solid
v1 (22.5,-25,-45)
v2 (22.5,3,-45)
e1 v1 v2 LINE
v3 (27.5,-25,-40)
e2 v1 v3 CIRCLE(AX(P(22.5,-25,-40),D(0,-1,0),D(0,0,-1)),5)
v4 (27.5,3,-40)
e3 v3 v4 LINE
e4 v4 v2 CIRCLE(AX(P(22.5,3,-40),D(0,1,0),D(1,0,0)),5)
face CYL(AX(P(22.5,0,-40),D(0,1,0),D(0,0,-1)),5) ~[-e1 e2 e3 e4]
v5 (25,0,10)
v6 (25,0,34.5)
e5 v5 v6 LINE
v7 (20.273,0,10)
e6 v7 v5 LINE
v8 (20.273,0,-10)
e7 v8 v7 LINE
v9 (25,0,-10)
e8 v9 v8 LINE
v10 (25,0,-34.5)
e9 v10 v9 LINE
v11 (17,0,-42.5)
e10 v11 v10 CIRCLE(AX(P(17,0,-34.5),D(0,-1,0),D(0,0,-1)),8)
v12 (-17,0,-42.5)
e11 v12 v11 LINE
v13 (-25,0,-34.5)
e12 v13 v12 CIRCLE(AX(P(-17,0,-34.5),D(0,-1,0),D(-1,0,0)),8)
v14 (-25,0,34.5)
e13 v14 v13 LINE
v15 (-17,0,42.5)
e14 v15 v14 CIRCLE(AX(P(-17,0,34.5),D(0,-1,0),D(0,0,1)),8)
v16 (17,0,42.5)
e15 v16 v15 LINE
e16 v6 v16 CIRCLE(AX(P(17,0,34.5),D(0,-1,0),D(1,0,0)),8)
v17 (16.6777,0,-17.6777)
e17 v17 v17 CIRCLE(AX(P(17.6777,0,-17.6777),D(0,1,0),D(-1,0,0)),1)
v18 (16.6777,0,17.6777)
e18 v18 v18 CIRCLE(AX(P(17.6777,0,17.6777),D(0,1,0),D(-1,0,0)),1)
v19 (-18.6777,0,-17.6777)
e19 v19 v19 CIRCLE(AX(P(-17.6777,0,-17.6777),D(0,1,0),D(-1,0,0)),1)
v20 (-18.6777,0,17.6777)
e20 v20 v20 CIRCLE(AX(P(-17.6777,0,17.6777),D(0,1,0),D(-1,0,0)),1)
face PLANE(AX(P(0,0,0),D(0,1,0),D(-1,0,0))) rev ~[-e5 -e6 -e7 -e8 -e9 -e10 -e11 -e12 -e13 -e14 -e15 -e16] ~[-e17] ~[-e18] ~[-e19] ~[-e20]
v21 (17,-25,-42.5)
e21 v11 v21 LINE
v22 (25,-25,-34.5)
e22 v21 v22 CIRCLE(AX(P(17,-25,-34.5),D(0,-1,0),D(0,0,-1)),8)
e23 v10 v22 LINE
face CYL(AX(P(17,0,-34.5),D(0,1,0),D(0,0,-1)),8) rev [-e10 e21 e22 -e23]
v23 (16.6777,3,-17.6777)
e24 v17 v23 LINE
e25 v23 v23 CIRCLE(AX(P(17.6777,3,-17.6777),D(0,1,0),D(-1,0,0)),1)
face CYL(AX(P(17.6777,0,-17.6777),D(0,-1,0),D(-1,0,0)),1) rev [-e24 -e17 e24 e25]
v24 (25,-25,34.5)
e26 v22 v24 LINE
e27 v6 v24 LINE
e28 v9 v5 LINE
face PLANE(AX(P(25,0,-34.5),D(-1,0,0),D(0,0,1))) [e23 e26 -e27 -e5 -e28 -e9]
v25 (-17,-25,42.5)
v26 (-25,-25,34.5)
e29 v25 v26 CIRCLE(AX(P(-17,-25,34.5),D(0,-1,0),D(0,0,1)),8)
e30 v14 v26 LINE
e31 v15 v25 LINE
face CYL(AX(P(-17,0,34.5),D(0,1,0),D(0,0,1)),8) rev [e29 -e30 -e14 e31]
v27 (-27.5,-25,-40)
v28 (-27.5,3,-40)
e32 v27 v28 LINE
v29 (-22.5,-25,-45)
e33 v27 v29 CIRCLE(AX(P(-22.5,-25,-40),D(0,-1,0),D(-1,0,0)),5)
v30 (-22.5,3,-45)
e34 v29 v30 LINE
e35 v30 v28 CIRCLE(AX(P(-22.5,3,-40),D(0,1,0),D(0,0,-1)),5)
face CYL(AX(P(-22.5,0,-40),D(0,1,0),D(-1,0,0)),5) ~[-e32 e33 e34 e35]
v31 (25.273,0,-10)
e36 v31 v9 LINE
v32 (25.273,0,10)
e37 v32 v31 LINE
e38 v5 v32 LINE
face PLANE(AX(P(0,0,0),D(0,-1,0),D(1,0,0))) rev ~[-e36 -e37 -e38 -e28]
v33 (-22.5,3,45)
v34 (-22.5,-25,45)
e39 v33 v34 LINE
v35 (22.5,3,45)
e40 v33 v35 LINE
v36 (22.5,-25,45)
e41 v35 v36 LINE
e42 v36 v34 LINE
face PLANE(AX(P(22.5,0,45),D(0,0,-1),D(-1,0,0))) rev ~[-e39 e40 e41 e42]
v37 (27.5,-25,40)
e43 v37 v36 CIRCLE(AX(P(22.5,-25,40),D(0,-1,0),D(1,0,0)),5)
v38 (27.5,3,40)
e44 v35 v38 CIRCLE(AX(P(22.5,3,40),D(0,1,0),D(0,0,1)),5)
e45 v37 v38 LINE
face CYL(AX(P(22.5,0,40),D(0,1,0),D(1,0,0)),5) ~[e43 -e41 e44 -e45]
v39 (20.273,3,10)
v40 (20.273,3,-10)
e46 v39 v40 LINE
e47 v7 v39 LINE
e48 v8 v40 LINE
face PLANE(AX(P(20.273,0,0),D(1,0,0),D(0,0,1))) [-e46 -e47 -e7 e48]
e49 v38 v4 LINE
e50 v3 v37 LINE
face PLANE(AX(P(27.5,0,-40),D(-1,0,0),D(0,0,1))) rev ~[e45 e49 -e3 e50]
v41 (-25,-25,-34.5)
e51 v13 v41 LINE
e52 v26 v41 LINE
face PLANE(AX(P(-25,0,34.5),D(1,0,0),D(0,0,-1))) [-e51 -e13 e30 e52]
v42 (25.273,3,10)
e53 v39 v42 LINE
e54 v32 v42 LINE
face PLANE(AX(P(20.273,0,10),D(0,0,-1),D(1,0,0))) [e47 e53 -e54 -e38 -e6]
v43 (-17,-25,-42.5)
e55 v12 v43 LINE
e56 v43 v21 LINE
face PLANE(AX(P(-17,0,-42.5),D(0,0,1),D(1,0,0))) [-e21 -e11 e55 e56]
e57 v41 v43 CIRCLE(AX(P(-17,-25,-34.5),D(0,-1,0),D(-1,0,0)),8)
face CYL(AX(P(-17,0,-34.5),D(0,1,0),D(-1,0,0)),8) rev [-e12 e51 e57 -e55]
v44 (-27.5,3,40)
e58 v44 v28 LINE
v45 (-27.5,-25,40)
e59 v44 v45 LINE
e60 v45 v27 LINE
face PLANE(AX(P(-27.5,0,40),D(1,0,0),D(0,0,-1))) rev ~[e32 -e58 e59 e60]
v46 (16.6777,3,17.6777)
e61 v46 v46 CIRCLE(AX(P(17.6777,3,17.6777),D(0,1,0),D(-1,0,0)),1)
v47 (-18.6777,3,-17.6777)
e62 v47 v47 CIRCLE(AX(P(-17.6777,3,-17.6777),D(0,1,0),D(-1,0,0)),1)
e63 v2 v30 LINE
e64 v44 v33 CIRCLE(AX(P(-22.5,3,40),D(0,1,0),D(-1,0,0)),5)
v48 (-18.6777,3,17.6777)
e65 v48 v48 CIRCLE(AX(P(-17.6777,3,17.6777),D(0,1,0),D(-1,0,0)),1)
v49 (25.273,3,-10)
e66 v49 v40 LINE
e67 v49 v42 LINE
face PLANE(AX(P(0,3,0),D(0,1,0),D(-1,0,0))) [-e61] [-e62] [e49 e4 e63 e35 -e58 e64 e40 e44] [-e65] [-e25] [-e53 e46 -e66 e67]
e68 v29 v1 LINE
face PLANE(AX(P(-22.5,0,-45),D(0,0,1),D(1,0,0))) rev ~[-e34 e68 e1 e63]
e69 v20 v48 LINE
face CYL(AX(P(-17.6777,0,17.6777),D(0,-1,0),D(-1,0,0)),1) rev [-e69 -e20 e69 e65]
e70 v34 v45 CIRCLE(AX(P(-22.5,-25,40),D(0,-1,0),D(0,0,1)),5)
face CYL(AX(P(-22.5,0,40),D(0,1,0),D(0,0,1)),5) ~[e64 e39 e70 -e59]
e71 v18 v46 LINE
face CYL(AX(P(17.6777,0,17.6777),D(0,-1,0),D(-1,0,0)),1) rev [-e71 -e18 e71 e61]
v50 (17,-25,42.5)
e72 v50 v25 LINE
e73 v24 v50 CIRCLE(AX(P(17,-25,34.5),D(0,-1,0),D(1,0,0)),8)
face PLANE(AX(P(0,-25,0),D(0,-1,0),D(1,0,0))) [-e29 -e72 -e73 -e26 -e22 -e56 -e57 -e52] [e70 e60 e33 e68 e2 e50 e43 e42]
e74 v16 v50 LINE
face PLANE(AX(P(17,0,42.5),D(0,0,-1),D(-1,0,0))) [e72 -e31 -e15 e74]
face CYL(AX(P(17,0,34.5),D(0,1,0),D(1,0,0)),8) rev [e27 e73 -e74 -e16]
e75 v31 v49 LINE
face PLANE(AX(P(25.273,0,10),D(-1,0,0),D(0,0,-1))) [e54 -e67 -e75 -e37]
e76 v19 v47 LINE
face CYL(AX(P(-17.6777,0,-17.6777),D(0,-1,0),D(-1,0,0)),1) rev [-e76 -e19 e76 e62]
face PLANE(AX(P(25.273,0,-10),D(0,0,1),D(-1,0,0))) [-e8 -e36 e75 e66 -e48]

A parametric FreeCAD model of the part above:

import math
import FreeCAD as App
import Part
import Sketcher
Q = App.Units.Quantity


def add_polygon(sketch, points):
    """Adds a closed chain of lines whose ends are joined by coincident constraints."""
    first, n = sketch.GeometryCount, len(points)
    for a, b in zip(points, points[1:] + points[:1]):
        sketch.addGeometry(Part.LineSegment(App.Vector(*a, 0), App.Vector(*b, 0)), False)
    for i in range(n):
        sketch.addConstraint(Sketcher.Constraint("Coincident", first + i, 2, first + (i + 1) % n, 1))

doc = App.newDocument("Part")
body = doc.addObject("PartDesign::Body", "Body")

sketch1 = doc.addObject("Sketcher::SketchObject", "Sketch")
body.addObject(sketch1)
sketch1.AttachmentSupport = (doc.XZ_Plane, [""])
sketch1.MapMode = "FlatFace"
sketch1.addGeometry(Part.ArcOfCircle(Part.Circle(App.Vector(-22.5, 40, 0), App.Vector(0, 0, 1), 5), math.radians(90), math.radians(180)), False)
sketch1.addGeometry(Part.LineSegment(App.Vector(-22.5, 45, 0), App.Vector(22.5, 45, 0)), False)
sketch1.addGeometry(Part.ArcOfCircle(Part.Circle(App.Vector(22.5, 40, 0), App.Vector(0, 0, 1), 5), math.radians(0), math.radians(90)), False)
sketch1.addGeometry(Part.LineSegment(App.Vector(27.5, 40, 0), App.Vector(27.5, -40, 0)), False)
sketch1.addGeometry(Part.ArcOfCircle(Part.Circle(App.Vector(22.5, -40, 0), App.Vector(0, 0, 1), 5), math.radians(-90), math.radians(0)), False)
sketch1.addGeometry(Part.LineSegment(App.Vector(22.5, -45, 0), App.Vector(-22.5, -45, 0)), False)
sketch1.addGeometry(Part.ArcOfCircle(Part.Circle(App.Vector(-22.5, -40, 0), App.Vector(0, 0, 1), 5), math.radians(180), math.radians(270)), False)
sketch1.addGeometry(Part.LineSegment(App.Vector(-27.5, -40, 0), App.Vector(-27.5, 40, 0)), False)
add_polygon(sketch1, [(20.3, 10), (20.3, -10), (25.3, -10), (25.3, 10)])
sketch1.addGeometry(Part.Circle(App.Vector(17.7, 17.7, 0), App.Vector(0, 0, 1), 1), False)
sketch1.addGeometry(Part.Circle(App.Vector(-17.7, 17.7, 0), App.Vector(0, 0, 1), 1), False)
sketch1.addGeometry(Part.Circle(App.Vector(17.7, -17.7, 0), App.Vector(0, 0, 1), 1), False)
sketch1.addGeometry(Part.Circle(App.Vector(-17.7, -17.7, 0), App.Vector(0, 0, 1), 1), False)
sketch1.addConstraint([
    Sketcher.Constraint("Tangent", 0, 1, 1, 1),
    Sketcher.Constraint("Tangent", 1, 2, 2, 2),
    Sketcher.Constraint("Tangent", 2, 1, 3, 1),
    Sketcher.Constraint("Tangent", 3, 2, 4, 2),
    Sketcher.Constraint("Tangent", 4, 1, 5, 1),
    Sketcher.Constraint("Tangent", 5, 2, 6, 2),
    Sketcher.Constraint("Tangent", 6, 1, 7, 1),
    Sketcher.Constraint("Tangent", 7, 2, 0, 2),
    Sketcher.Constraint("Horizontal", 1),
    Sketcher.Constraint("Vertical", 3),
    Sketcher.Constraint("Horizontal", 5),
    Sketcher.Constraint("Vertical", 7),
    Sketcher.Constraint("Vertical", 8),
    Sketcher.Constraint("Horizontal", 9),
    Sketcher.Constraint("Vertical", 10),
    Sketcher.Constraint("Horizontal", 11),
    Sketcher.Constraint("Equal", 0, 2),
    Sketcher.Constraint("Equal", 2, 4),
    Sketcher.Constraint("Equal", 4, 6),
    Sketcher.Constraint("Equal", 12, 13),
    Sketcher.Constraint("Equal", 13, 14),
    Sketcher.Constraint("Equal", 14, 15),
    Sketcher.Constraint("Symmetric", 0, 3, 4, 3, -1, 1),
    Sketcher.Constraint("Symmetric", 13, 3, 14, 3, -1, 1),
    Sketcher.Constraint("Symmetric", 12, 3, 15, 3, -1, 1),
    Sketcher.Constraint("Symmetric", 12, 3, 13, 3, -2),
    Sketcher.Constraint("Diameter", 12, Q("2 mm")),
    Sketcher.Constraint("Radius", 0, Q("5 mm")),
    Sketcher.Constraint("DistanceX", 1, 1, 1, 2, Q("45 mm")),
    Sketcher.Constraint("DistanceX", 9, 1, 9, 2, Q("5 mm")),
    Sketcher.Constraint("DistanceY", 8, 2, 8, 1, Q("20 mm")),
    Sketcher.Constraint("DistanceY", -1, 1, 0, 1, Q("45 mm")),
    Sketcher.Constraint("DistanceY", 8, 2, -1, 1, Q("10 mm")),
    Sketcher.Constraint("DistanceX", -1, 1, 8, 2, Q("20.273 mm")),
    Sketcher.Constraint("DistanceX", -1, 1, 12, 3, Q("17.6777 mm")),
    Sketcher.Constraint("DistanceY", -1, 1, 12, 3, Q("17.6777 mm")),
])
pad1 = doc.addObject("PartDesign::Pad", "Pad")
body.addObject(pad1)
pad1.Profile = sketch1
pad1.Length = 3
pad1.Reversed = True

sketch2 = doc.addObject("Sketcher::SketchObject", "Sketch001")
body.addObject(sketch2)
sketch2.AttachmentSupport = (doc.XZ_Plane, [""])
sketch2.MapMode = "FlatFace"
sketch2.addGeometry([
    Part.ArcOfCircle(Part.Circle(App.Vector(22, 40, 0), App.Vector(0, 0, 1), 5), math.radians(0), math.radians(90)),
    Part.LineSegment(App.Vector(22, 45, 0), App.Vector(-22, 45, 0)),
    Part.ArcOfCircle(Part.Circle(App.Vector(-22, 40, 0), App.Vector(0, 0, 1), 5), math.radians(90), math.radians(180)),
    Part.LineSegment(App.Vector(-28, 40, 0), App.Vector(-28, -40, 0)),
    Part.ArcOfCircle(Part.Circle(App.Vector(-22, -40, 0), App.Vector(0, 0, 1), 5), math.radians(180), math.radians(270)),
    Part.LineSegment(App.Vector(-22, -45, 0), App.Vector(22, -45, 0)),
    Part.ArcOfCircle(Part.Circle(App.Vector(22, -40, 0), App.Vector(0, 0, 1), 5), math.radians(-90), math.radians(0)),
    Part.LineSegment(App.Vector(28, -40, 0), App.Vector(28, 40, 0)),
    Part.LineSegment(App.Vector(-17, 42, 0), App.Vector(17, 42, 0)),
    Part.ArcOfCircle(Part.Circle(App.Vector(17, 34, 0), App.Vector(0, 0, 1), 8), math.radians(0), math.radians(90)),
    Part.LineSegment(App.Vector(25, 34, 0), App.Vector(25, -34, 0)),
    Part.ArcOfCircle(Part.Circle(App.Vector(17, -34, 0), App.Vector(0, 0, 1), 8), math.radians(-90), math.radians(0)),
    Part.LineSegment(App.Vector(17, -42, 0), App.Vector(-17, -42, 0)),
    Part.ArcOfCircle(Part.Circle(App.Vector(-17, -34, 0), App.Vector(0, 0, 1), 8), math.radians(180), math.radians(270)),
    Part.LineSegment(App.Vector(-25, -34, 0), App.Vector(-25, 34, 0)),
    Part.ArcOfCircle(Part.Circle(App.Vector(-17, 34, 0), App.Vector(0, 0, 1), 8), math.radians(90), math.radians(180)),
], False)
sketch2.addConstraint([
    Sketcher.Constraint("Tangent", 0, 2, 1, 1),
    Sketcher.Constraint("Tangent", 1, 2, 2, 1),
    Sketcher.Constraint("Tangent", 2, 2, 3, 1),
    Sketcher.Constraint("Tangent", 3, 2, 4, 1),
    Sketcher.Constraint("Tangent", 4, 2, 5, 1),
    Sketcher.Constraint("Tangent", 5, 2, 6, 1),
    Sketcher.Constraint("Tangent", 6, 2, 7, 1),
    Sketcher.Constraint("Tangent", 7, 2, 0, 1),
    Sketcher.Constraint("Tangent", 8, 2, 9, 2),
    Sketcher.Constraint("Tangent", 9, 1, 10, 1),
    Sketcher.Constraint("Tangent", 10, 2, 11, 2),
    Sketcher.Constraint("Tangent", 11, 1, 12, 1),
    Sketcher.Constraint("Tangent", 12, 2, 13, 2),
    Sketcher.Constraint("Tangent", 13, 1, 14, 1),
    Sketcher.Constraint("Tangent", 14, 2, 15, 2),
    Sketcher.Constraint("Tangent", 15, 1, 8, 1),
    Sketcher.Constraint("Horizontal", 1),
    Sketcher.Constraint("Vertical", 3),
    Sketcher.Constraint("Horizontal", 5),
    Sketcher.Constraint("Vertical", 7),
    Sketcher.Constraint("Horizontal", 8),
    Sketcher.Constraint("Vertical", 10),
    Sketcher.Constraint("Horizontal", 12),
    Sketcher.Constraint("Vertical", 14),
    Sketcher.Constraint("Equal", 0, 2),
    Sketcher.Constraint("Equal", 2, 4),
    Sketcher.Constraint("Equal", 4, 6),
    Sketcher.Constraint("Equal", 9, 11),
    Sketcher.Constraint("Equal", 11, 13),
    Sketcher.Constraint("Equal", 13, 15),
    Sketcher.Constraint("Symmetric", 0, 3, 4, 3, -1, 1),
    Sketcher.Constraint("Symmetric", 9, 3, 13, 3, -1, 1),
    Sketcher.Constraint("Radius", 0, Q("5 mm")),
    Sketcher.Constraint("Radius", 9, Q("8 mm")),
    Sketcher.Constraint("DistanceX", 2, 2, 0, 3, Q("50 mm")),
    Sketcher.Constraint("DistanceX", 8, 1, 8, 2, Q("34 mm")),
    Sketcher.Constraint("DistanceY", 3, 2, 3, 1, Q("80 mm")),
    Sketcher.Constraint("DistanceY", 10, 2, 10, 1, Q("69 mm")),
])
pad2 = doc.addObject("PartDesign::Pad", "Pad001")
body.addObject(pad2)
pad2.Profile = sketch2
pad2.Length = 25

doc.recompute()
